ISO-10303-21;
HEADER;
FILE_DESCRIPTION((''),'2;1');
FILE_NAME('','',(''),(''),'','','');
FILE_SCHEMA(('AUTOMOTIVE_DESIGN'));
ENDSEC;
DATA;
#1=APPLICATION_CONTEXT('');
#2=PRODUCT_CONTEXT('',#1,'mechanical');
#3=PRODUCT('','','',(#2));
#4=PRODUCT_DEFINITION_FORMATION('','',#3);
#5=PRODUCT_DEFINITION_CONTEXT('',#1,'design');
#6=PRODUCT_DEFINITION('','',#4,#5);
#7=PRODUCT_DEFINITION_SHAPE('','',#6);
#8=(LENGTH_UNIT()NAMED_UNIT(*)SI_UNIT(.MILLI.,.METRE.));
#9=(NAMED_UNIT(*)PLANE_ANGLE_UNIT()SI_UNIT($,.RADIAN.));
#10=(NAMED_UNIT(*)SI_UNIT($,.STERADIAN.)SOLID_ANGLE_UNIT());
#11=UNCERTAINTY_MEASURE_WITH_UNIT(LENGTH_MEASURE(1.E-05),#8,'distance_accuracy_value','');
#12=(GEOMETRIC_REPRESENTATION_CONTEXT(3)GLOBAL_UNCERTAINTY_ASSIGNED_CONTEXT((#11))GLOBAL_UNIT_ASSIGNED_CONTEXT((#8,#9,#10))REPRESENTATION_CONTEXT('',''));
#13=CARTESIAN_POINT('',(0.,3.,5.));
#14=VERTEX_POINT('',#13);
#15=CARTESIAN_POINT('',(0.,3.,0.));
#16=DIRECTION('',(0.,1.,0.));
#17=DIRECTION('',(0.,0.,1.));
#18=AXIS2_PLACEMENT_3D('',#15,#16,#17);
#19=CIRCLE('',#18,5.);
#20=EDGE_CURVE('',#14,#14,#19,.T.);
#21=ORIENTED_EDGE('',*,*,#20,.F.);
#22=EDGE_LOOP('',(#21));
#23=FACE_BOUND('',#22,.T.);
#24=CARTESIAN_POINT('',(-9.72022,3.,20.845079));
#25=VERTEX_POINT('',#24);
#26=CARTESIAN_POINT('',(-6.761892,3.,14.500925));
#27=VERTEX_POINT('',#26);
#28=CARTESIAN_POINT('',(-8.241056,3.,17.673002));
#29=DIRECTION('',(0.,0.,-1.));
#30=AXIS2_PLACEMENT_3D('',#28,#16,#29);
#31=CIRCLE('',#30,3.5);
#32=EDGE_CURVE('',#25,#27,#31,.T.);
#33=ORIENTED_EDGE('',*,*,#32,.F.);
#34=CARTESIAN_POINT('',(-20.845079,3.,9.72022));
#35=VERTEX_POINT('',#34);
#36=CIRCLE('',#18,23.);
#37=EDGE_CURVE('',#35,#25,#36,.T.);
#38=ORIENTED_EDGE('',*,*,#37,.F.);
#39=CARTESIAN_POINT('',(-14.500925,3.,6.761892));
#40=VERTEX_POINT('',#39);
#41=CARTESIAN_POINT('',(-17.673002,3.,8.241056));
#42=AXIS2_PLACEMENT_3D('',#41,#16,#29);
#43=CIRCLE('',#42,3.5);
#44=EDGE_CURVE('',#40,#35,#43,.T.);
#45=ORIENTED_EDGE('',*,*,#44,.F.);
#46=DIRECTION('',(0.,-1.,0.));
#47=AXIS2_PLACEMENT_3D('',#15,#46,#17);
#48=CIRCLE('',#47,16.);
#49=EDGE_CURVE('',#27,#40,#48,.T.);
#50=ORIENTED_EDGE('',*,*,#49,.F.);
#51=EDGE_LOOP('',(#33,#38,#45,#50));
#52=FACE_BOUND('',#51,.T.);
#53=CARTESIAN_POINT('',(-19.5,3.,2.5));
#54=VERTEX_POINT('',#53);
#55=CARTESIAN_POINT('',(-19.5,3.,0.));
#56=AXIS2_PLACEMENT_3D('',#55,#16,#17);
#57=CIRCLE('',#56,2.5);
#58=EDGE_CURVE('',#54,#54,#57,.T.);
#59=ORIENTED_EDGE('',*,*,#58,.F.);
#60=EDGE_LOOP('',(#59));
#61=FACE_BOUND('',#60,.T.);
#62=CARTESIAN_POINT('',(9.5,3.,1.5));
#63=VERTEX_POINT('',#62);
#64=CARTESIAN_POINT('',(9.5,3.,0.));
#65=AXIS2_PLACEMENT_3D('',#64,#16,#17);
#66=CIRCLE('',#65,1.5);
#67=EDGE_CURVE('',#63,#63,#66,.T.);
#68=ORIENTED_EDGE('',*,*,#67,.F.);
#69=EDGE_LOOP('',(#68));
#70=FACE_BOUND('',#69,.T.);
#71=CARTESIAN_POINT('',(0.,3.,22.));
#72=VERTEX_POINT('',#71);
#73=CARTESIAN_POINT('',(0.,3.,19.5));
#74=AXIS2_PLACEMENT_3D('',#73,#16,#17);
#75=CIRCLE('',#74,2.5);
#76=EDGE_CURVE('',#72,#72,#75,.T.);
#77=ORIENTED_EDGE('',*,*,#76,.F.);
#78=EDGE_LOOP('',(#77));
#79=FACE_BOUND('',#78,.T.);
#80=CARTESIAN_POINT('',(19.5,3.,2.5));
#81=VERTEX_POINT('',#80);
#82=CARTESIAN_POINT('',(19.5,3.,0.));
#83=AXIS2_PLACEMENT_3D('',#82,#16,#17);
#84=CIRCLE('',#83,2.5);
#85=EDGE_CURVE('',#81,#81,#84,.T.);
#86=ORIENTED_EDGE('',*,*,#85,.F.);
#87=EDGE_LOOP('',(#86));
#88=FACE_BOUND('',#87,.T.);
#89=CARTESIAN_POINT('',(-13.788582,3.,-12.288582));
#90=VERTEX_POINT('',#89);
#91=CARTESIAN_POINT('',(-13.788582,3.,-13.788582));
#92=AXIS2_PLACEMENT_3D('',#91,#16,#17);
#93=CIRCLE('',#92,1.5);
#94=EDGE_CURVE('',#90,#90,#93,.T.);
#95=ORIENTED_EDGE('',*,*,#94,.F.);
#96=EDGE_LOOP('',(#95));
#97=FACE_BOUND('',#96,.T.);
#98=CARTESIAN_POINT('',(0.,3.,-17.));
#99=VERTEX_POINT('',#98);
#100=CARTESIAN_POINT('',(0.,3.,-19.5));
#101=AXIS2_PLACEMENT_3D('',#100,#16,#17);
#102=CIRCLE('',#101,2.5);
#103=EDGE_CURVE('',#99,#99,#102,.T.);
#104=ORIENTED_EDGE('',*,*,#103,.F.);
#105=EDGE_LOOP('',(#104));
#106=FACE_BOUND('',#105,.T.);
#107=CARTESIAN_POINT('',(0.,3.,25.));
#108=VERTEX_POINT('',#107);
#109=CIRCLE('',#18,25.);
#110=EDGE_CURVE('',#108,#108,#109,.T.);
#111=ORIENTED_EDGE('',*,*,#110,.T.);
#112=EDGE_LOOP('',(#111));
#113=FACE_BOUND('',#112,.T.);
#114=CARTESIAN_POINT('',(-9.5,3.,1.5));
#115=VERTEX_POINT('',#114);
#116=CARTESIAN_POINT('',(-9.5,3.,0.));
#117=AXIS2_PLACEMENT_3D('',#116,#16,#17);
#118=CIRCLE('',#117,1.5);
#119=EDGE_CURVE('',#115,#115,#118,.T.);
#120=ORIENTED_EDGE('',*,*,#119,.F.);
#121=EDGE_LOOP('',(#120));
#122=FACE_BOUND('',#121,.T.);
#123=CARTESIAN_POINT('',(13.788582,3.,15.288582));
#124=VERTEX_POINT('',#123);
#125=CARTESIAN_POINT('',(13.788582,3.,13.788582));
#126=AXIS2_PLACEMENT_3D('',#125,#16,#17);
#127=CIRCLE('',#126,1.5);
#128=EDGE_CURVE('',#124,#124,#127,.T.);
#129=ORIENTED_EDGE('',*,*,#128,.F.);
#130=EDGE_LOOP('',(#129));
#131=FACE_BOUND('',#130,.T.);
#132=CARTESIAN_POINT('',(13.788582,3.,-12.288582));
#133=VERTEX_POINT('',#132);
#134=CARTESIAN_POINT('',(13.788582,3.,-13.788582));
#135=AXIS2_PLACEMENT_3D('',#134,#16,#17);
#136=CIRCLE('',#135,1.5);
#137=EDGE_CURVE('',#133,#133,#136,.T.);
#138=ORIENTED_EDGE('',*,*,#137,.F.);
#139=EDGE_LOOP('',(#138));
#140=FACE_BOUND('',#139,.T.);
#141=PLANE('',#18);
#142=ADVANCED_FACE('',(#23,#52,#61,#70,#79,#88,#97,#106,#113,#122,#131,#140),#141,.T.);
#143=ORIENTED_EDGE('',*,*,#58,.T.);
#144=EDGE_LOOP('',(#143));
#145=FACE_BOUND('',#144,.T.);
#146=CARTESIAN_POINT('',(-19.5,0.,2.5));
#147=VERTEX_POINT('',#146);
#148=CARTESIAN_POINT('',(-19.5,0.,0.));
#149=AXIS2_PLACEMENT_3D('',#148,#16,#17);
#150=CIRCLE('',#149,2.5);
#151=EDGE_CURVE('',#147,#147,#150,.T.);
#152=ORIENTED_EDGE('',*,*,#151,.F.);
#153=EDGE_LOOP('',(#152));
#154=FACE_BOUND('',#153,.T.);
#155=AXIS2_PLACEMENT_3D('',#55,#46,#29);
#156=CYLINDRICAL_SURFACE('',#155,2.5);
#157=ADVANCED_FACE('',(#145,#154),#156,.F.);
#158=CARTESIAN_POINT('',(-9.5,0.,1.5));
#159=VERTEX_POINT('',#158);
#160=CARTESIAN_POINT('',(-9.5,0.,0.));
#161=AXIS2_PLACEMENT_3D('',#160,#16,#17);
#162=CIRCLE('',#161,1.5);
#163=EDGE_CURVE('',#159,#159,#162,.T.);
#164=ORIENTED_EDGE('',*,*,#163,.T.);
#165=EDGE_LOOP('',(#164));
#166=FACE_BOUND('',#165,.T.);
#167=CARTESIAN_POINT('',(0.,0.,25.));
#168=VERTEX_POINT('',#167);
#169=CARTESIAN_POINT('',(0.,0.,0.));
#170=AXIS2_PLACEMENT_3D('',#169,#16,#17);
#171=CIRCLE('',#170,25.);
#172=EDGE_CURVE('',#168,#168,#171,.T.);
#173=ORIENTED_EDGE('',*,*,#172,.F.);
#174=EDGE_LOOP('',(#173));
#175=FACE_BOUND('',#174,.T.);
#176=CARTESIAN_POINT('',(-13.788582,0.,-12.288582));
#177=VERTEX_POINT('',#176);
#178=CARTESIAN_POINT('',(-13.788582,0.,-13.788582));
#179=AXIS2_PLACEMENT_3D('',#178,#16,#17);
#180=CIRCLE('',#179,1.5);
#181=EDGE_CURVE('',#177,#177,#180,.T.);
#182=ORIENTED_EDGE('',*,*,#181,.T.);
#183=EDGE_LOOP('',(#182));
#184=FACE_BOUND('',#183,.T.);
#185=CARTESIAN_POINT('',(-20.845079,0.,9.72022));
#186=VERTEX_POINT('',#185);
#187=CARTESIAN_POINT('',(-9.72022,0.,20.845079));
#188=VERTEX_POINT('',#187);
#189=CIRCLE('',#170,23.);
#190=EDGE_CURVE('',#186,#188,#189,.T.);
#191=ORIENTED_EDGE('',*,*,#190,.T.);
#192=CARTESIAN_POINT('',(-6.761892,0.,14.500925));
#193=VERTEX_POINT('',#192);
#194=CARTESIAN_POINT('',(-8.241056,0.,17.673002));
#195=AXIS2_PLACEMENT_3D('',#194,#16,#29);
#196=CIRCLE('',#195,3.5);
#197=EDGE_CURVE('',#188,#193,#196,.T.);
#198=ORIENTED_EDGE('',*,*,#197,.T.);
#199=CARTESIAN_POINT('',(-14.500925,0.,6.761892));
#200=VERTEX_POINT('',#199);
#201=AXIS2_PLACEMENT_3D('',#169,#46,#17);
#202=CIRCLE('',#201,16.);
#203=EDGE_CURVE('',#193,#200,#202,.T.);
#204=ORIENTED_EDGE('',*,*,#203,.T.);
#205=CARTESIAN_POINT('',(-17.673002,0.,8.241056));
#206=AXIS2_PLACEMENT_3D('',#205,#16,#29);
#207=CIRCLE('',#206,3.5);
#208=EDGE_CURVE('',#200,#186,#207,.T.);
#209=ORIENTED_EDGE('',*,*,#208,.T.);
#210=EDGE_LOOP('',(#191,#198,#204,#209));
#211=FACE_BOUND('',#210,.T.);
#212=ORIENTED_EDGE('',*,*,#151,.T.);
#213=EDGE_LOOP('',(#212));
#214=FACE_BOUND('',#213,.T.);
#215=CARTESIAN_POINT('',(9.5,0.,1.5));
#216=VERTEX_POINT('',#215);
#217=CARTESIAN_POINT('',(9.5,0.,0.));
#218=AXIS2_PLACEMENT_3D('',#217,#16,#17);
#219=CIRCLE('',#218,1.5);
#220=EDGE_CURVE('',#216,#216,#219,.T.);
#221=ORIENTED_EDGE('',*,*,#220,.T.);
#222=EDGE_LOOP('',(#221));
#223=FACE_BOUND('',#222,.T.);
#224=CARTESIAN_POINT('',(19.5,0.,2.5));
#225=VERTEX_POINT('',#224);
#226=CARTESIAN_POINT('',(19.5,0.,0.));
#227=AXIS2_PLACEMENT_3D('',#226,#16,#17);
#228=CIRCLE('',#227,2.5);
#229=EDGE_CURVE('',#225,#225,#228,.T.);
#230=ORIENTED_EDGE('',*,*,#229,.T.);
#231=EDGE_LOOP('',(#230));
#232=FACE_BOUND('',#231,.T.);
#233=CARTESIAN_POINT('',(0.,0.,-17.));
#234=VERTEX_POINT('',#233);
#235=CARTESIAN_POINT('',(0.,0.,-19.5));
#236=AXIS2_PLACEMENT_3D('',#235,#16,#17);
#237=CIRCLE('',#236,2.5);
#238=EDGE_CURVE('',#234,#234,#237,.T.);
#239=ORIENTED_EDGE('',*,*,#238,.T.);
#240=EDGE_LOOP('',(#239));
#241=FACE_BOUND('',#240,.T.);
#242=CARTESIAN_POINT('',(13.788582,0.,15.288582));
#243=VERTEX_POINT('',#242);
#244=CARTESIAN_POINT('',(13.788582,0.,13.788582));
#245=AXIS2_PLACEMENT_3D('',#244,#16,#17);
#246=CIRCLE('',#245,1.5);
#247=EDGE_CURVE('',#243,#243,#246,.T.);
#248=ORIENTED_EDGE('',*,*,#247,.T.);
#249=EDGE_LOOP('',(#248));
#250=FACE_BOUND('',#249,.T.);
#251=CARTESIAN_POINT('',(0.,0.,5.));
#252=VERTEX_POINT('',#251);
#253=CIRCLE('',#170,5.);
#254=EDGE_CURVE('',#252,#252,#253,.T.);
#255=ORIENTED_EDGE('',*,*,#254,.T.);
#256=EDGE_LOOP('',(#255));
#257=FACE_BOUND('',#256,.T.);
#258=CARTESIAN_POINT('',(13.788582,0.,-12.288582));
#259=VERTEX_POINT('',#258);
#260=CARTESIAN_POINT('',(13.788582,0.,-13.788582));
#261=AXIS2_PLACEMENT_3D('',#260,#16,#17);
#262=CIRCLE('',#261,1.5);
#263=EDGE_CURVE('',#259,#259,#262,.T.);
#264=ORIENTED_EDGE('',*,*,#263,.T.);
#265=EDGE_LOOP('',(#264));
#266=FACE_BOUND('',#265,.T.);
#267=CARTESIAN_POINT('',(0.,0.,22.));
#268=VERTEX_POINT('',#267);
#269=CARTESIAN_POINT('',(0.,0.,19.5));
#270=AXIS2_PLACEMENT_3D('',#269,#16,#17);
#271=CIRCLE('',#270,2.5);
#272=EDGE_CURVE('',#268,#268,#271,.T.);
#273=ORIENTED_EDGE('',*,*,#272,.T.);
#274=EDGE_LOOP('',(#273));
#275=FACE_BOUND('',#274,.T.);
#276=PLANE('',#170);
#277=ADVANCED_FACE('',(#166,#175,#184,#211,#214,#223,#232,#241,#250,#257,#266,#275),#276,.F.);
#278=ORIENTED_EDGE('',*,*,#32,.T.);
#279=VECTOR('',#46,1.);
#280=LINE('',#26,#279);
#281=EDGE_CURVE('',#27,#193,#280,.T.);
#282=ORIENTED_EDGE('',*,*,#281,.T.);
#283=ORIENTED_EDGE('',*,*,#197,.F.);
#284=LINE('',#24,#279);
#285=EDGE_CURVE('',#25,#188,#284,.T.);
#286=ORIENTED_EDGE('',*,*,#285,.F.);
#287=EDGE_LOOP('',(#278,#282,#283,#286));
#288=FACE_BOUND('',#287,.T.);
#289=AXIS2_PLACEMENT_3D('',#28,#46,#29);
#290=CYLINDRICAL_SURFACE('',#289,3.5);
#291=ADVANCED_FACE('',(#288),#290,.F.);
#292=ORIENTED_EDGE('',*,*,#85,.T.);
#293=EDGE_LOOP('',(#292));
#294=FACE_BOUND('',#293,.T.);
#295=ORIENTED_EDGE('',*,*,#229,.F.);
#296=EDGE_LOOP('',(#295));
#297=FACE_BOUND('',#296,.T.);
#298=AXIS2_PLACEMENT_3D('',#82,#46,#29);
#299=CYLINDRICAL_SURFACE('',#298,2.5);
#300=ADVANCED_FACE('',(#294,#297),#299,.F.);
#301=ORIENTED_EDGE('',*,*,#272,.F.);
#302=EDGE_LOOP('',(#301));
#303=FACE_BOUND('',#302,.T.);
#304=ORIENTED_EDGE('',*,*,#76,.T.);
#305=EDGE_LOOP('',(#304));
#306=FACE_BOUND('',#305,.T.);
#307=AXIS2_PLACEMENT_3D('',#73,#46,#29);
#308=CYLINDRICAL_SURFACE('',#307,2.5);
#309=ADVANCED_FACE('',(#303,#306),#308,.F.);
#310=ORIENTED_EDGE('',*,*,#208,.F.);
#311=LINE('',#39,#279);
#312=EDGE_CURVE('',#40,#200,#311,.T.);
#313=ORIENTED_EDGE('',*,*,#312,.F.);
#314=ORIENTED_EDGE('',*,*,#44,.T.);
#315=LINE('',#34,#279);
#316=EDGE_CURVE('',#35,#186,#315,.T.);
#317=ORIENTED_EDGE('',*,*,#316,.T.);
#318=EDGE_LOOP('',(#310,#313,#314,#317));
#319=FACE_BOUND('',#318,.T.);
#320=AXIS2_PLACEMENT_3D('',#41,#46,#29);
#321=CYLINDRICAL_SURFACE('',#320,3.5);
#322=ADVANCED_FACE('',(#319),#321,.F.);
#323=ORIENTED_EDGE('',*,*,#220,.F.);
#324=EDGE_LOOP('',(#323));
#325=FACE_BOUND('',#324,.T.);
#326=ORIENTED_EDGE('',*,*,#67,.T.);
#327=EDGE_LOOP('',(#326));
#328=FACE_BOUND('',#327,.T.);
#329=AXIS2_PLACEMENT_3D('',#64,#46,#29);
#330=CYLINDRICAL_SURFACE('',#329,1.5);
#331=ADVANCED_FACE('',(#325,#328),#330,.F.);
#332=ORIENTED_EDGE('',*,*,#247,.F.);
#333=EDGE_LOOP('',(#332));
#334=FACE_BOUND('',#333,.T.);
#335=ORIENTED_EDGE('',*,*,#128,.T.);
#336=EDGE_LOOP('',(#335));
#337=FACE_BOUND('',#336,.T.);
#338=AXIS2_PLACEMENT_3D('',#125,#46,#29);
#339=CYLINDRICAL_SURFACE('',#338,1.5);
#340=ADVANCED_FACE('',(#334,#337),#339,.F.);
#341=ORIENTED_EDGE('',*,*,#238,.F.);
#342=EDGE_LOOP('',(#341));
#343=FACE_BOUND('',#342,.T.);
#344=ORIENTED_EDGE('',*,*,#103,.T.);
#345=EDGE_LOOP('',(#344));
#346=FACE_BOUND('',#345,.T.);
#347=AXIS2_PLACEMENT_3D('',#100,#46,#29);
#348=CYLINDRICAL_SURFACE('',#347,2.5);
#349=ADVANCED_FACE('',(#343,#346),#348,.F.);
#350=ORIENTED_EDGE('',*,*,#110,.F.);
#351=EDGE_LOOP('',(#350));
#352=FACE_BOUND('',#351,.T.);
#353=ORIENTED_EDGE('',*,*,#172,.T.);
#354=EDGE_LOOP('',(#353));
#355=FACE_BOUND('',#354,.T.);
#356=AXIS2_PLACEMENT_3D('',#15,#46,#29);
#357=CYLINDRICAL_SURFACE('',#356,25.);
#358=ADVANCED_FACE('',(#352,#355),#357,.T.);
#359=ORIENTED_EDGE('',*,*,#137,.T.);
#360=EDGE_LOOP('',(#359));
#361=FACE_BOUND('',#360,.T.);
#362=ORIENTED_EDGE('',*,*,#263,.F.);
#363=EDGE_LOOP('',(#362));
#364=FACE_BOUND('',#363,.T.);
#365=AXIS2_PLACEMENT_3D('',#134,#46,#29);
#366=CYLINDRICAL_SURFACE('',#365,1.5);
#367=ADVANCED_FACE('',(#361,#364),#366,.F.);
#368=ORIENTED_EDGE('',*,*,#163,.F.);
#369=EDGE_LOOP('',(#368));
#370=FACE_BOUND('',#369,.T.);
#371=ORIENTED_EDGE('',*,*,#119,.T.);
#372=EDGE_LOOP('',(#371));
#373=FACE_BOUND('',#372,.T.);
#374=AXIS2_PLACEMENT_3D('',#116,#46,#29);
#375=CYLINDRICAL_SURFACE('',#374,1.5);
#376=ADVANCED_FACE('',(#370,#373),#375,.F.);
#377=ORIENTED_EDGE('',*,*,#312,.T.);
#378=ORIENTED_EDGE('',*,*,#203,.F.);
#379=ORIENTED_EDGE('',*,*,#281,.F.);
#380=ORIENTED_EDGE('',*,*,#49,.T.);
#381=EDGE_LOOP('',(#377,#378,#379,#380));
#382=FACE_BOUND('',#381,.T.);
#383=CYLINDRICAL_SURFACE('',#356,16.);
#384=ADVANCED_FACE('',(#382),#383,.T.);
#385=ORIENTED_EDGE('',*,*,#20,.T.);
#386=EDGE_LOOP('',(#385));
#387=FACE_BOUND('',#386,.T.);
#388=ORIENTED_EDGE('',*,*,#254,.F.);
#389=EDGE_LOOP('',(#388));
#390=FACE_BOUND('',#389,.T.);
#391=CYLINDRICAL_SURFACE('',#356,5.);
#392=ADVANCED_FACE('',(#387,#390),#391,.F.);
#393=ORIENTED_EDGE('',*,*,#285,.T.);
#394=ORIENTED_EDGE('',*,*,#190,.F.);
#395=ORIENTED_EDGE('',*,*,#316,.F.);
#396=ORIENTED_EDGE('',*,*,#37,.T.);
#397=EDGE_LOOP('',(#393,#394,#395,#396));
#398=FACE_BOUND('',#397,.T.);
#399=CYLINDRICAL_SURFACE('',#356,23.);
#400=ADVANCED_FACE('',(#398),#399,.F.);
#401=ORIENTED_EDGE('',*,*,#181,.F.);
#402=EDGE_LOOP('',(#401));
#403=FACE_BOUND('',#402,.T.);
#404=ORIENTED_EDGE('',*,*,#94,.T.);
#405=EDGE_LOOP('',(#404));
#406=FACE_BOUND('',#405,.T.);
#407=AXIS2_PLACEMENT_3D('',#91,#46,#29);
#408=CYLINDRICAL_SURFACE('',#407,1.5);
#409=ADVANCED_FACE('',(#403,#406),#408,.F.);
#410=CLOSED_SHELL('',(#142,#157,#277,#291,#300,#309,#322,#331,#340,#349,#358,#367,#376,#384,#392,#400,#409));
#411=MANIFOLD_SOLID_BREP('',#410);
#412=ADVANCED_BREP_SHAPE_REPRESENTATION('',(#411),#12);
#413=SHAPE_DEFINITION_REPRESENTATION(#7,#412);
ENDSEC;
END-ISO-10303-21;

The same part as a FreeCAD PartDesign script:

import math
import FreeCAD as App
import Part
import Sketcher

V = App.Vector

doc = App.newDocument("Part")
params = doc.addObject("Spreadsheet::Sheet", "Params")
for row, (alias, value) in enumerate([
    ("sketch1_diameter", "50 mm"),
    ("sketch1_diameter2", "3 mm"),
    ("sketch1_diameter3", "5 mm"),
    ("sketch1_diameter4", "10 mm"),
    ("sketch1_radius", "23 mm"),
    ("pad1_length", "3 mm"),
], start=1):
    params.set(f"A{row}", alias)
    params.set(f"B{row}", "=" + value)
    params.setAlias(f"B{row}", alias)

body = doc.addObject("PartDesign::Body", "Body")

# Sketch on XZ plane
sketch1 = body.newObject("Sketcher::SketchObject", "Sketch")
sketch1.AttachmentSupport = (doc.getObject("XZ_Plane"), [""])
sketch1.MapMode = "FlatFace"
sketch1.addGeometry(Part.Circle(V(0, 0, 0), V(0, 0, 1), 25), False)
sketch1.addGeometry(Part.Circle(V(-13.8, -13.8, 0), V(0, 0, 1), 1.5), False)
sketch1.addGeometry(Part.Circle(V(0, -19.5, 0), V(0, 0, 1), 2.5), False)
sketch1.addGeometry(Part.Circle(V(-19.5, 0, 0), V(0, 0, 1), 2.5), False)
sketch1.addGeometry(Part.ArcOfCircle(Part.Circle(V(0, 0, 0), V(0, 0, 1), 23), math.radians(115), math.radians(155)), False)
sketch1.addGeometry(Part.ArcOfCircle(Part.Circle(V(-17.7, 8.2, 0), V(0, 0, 1), 3.5), math.radians(155), math.radians(335)), False)
sketch1.addGeometry(Part.ArcOfCircle(Part.Circle(V(0, 0, 0), V(0, 0, 1), 16), math.radians(115), math.radians(155)), False)
sketch1.addGeometry(Part.ArcOfCircle(Part.Circle(V(-8.2, 17.7, 0), V(0, 0, 1), 3.5), math.radians(-65), math.radians(115)), False)
sketch1.addGeometry(Part.Circle(V(-9.5, 0, 0), V(0, 0, 1), 1.5), False)
sketch1.addGeometry(Part.Circle(V(13.8, -13.8, 0), V(0, 0, 1), 1.5), False)
sketch1.addGeometry(Part.Circle(V(19.5, 0, 0), V(0, 0, 1), 2.5), False)
sketch1.addGeometry(Part.Circle(V(0, 0, 0), V(0, 0, 1), 5), False)
sketch1.addGeometry(Part.Circle(V(9.5, 0, 0), V(0, 0, 1), 1.5), False)
sketch1.addGeometry(Part.Circle(V(0, 19.5, 0), V(0, 0, 1), 2.5), False)
sketch1.addGeometry(Part.Circle(V(13.8, 13.8, 0), V(0, 0, 1), 1.5), False)
sketch1.addConstraint(Sketcher.Constraint("Tangent", 4, 2, 5, 1))
sketch1.addConstraint(Sketcher.Constraint("Tangent", 5, 2, 6, 2))
sketch1.addConstraint(Sketcher.Constraint("Tangent", 6, 1, 7, 1))
sketch1.addConstraint(Sketcher.Constraint("Tangent", 7, 2, 4, 1))
sketch1.addConstraint(Sketcher.Constraint("Coincident", 0, 3, -1, 1))
sketch1.addConstraint(Sketcher.Constraint("Coincident", 4, 3, -1, 1))
sketch1.addConstraint(Sketcher.Constraint("Coincident", 6, 3, -1, 1))
sketch1.addConstraint(Sketcher.Constraint("Coincident", 11, 3, -1, 1))
sketch1.addConstraint(Sketcher.Constraint("Equal", 2, 3))
sketch1.addConstraint(Sketcher.Constraint("Equal", 1, 8))
sketch1.addConstraint(Sketcher.Constraint("Equal", 8, 9))
sketch1.addConstraint(Sketcher.Constraint("Equal", 3, 10))
sketch1.addConstraint(Sketcher.Constraint("Equal", 9, 12))
sketch1.addConstraint(Sketcher.Constraint("Equal", 10, 13))
sketch1.addConstraint(Sketcher.Constraint("Equal", 12, 14))
sketch1.addConstraint(Sketcher.Constraint("Symmetric", 3, 3, 10, 3, -1, 1))
sketch1.addConstraint(Sketcher.Constraint("Symmetric", 8, 3, 12, 3, -1, 1))
sketch1.addConstraint(Sketcher.Constraint("Symmetric", 2, 3, 13, 3, -1, 1))
sketch1.addConstraint(Sketcher.Constraint("Symmetric", 1, 3, 14, 3, -1, 1))
sketch1.addConstraint(Sketcher.Constraint("Symmetric", 1, 3, 9, 3, -2))
sketch1.addConstraint(Sketcher.Constraint("PointOnObject", 2, 3, -2))
sketch1.addConstraint(Sketcher.Constraint("PointOnObject", 3, 3, -1))
sketch1.addConstraint(Sketcher.Constraint("PointOnObject", 8, 3, -1))
sketch1.addConstraint(Sketcher.Constraint("Diameter", 0, 50.0))
sketch1.addConstraint(Sketcher.Constraint("Diameter", 1, 3.0))
sketch1.addConstraint(Sketcher.Constraint("Diameter", 2, 5.0))
sketch1.addConstraint(Sketcher.Constraint("Diameter", 11, 10.0))
sketch1.addConstraint(Sketcher.Constraint("Radius", 4, 23.0))
sketch1.addConstraint(Sketcher.Constraint("Radius", 6, 16.0))
sketch1.addConstraint(Sketcher.Constraint("DistanceX", 3, 3, 8, 3, 10.0))
sketch1.addConstraint(Sketcher.Constraint("DistanceY", 2, 3, -1, 1, 19.5))
sketch1.addConstraint(Sketcher.Constraint("DistanceX", 3, 3, -1, 1, 19.5))
sketch1.addConstraint(Sketcher.Constraint("DistanceX", 5, 3, -1, 1, 17.673002))
sketch1.addConstraint(Sketcher.Constraint("DistanceY", -1, 1, 7, 3, 17.673002))
sketch1.addConstraint(Sketcher.Constraint("DistanceX", 5, 3, 1, 3, 3.88442))
sketch1.addConstraint(Sketcher.Constraint("DistanceY", 1, 3, 5, 3, 22.029638))
sketch1.setExpression("Constraints[23]", "Params.sketch1_diameter")
sketch1.setExpression("Constraints[24]", "Params.sketch1_diameter2")
sketch1.setExpression("Constraints[25]", "Params.sketch1_diameter3")
sketch1.setExpression("Constraints[26]", "Params.sketch1_diameter4")
sketch1.setExpression("Constraints[27]", "Params.sketch1_radius")
pad1 = body.newObject("PartDesign::Pad", "Pad")
pad1.Profile = sketch1
pad1.setExpression("Length", "Params.pad1_length")
pad1.Reversed = True

doc.recompute()
